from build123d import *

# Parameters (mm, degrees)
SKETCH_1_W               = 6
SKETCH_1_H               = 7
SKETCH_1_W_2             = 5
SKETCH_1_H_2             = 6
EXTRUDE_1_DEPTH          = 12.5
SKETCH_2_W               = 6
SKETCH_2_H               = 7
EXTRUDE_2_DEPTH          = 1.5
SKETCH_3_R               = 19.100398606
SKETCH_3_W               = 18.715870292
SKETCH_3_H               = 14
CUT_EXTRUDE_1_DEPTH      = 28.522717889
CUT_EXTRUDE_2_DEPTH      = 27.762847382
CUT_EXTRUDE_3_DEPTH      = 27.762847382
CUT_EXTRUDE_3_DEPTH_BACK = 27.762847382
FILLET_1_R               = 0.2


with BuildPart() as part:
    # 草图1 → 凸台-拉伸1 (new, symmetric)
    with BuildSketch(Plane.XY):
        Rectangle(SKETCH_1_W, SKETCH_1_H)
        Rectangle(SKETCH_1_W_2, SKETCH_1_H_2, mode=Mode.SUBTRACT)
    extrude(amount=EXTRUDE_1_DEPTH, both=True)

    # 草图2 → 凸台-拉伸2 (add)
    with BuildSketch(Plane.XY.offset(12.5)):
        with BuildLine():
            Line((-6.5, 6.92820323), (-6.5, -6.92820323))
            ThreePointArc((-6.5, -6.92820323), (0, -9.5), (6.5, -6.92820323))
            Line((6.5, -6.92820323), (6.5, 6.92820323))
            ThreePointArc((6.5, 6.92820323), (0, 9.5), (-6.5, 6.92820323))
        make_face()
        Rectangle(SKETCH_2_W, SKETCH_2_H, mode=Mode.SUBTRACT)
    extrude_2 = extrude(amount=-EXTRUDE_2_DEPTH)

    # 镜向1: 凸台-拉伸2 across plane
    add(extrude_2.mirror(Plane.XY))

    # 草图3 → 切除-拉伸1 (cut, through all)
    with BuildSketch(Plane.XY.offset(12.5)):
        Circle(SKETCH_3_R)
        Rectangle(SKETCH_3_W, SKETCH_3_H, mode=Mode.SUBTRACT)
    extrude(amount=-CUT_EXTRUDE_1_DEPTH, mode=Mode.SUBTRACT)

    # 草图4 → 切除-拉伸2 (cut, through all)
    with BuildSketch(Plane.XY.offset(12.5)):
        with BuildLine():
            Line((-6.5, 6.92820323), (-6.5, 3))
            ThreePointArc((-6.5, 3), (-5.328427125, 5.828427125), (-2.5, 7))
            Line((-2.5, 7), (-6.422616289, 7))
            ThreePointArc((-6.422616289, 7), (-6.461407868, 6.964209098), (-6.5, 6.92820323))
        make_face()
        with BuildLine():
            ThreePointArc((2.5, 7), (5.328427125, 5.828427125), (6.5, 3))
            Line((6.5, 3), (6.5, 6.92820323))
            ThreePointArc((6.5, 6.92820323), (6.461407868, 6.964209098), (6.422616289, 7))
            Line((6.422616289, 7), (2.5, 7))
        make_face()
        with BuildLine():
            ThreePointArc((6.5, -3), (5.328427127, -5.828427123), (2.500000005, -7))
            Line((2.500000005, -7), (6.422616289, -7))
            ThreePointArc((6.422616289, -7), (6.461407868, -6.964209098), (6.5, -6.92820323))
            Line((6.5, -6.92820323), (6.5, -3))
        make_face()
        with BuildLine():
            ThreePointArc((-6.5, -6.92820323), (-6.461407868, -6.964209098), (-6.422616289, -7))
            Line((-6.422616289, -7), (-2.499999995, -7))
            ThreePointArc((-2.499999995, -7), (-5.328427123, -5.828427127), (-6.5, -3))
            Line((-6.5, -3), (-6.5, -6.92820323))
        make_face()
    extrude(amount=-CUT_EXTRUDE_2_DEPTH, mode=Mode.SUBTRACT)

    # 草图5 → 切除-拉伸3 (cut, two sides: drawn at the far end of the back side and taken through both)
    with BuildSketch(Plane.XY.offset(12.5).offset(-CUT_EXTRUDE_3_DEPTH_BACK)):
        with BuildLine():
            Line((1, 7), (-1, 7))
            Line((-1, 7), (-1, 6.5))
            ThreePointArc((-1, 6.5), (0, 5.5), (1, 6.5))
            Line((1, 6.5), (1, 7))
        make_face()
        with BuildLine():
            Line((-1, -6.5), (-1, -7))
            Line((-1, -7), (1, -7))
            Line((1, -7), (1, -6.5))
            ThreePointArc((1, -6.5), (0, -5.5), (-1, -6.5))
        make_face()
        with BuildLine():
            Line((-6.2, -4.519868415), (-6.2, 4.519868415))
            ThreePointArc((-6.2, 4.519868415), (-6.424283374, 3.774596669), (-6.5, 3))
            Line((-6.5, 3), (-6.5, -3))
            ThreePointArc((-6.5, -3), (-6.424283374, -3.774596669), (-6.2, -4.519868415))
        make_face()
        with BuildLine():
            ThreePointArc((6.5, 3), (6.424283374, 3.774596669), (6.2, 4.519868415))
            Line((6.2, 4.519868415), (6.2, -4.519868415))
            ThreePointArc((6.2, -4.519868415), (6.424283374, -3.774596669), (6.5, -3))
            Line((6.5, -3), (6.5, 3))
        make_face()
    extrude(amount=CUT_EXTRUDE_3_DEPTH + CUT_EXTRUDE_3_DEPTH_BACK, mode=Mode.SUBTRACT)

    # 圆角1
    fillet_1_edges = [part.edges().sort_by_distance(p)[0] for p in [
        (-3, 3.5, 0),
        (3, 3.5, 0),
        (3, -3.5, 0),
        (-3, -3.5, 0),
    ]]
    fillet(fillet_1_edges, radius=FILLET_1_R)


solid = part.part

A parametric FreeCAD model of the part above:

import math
import FreeCAD as App
import Part
import Sketcher

V = App.Vector


def edges_at(feature, points):
    """Names of the edges that pass closest to the given points."""
    edges = feature.Shape.Edges
    near = lambda p: min(range(len(edges)), key=lambda i: edges[i].distToShape(Part.Vertex(*p))[0])
    return sorted({f"Edge{near(p) + 1}" for p in points})

doc = App.newDocument("Part")
params = doc.addObject("Spreadsheet::Sheet", "Params")
for row, (alias, value) in enumerate([
    ("sketch1_width", "6 mm"),
    ("sketch1_width2", "5 mm"),
    ("sketch1_height", "7 mm"),
    ("pad1_length", "25 mm"),
    ("sketch2_radius", "9.5 mm"),
    ("sketch2_width", "6 mm"),
    ("sketch2_height", "7 mm"),
    ("pad2_length", "1.5 mm"),
    ("sketch3_height", "14 mm"),
    ("sketch4_radius", "4 mm"),
    ("sketch5_radius", "1 mm"),
    ("sketch5_radius2", "4 mm"),
    ("sketch5_height", "6 mm"),
    ("sketch5_height2", "0.5 mm"),
    ("fillet_radius", "0.2 mm"),
], start=1):
    params.set(f"A{row}", alias)
    params.set(f"B{row}", "=" + value)
    params.setAlias(f"B{row}", alias)

body = doc.addObject("PartDesign::Body", "Body")

# Sketch on XY plane
sketch1 = body.newObject("Sketcher::SketchObject", "Sketch")
sketch1.AttachmentSupport = (doc.getObject("XY_Plane"), [""])
sketch1.MapMode = "FlatFace"
sketch1.addGeometry([
    Part.LineSegment(V(-3, 4, 0), V(-3, -4, 0)),  # 0
    Part.LineSegment(V(-3, -4, 0), V(3, -4, 0)),  # 1
    Part.LineSegment(V(3, -4, 0), V(3, 4, 0)),  # 2
    Part.LineSegment(V(3, 4, 0), V(-3, 4, 0)),  # 3
    Part.LineSegment(V(2, -3, 0), V(-2, -3, 0)),  # 4
    Part.LineSegment(V(-2, -3, 0), V(-2, 3, 0)),  # 5
    Part.LineSegment(V(-2, 3, 0), V(2, 3, 0)),  # 6
    Part.LineSegment(V(2, 3, 0), V(2, -3, 0)),  # 7
], False)
sketch1.addConstraint([
    Sketcher.Constraint("Coincident", 0, 2, 1, 1),
    Sketcher.Constraint("Coincident", 1, 2, 2, 1),
    Sketcher.Constraint("Coincident", 2, 2, 3, 1),
    Sketcher.Constraint("Coincident", 3, 2, 0, 1),
    Sketcher.Constraint("Coincident", 4, 2, 5, 1),
    Sketcher.Constraint("Coincident", 5, 2, 6, 1),
    Sketcher.Constraint("Coincident", 6, 2, 7, 1),
    Sketcher.Constraint("Coincident", 7, 2, 4, 1),
    Sketcher.Constraint("Vertical", 0),
    Sketcher.Constraint("Horizontal", 1),
    Sketcher.Constraint("Vertical", 2),
    Sketcher.Constraint("Horizontal", 3),
    Sketcher.Constraint("Horizontal", 4),
    Sketcher.Constraint("Vertical", 5),
    Sketcher.Constraint("Horizontal", 6),
    Sketcher.Constraint("Vertical", 7),
    Sketcher.Constraint("Symmetric", 0, 2, 2, 2, -1, 1),
    Sketcher.Constraint("Symmetric", 4, 2, 6, 2, -1, 1),
    Sketcher.Constraint("Equal", 3, 5),
    Sketcher.Constraint("DistanceX", 1, 1, 1, 2, 6.0),
    Sketcher.Constraint("DistanceX", 4, 2, 4, 1, 5.0),
    Sketcher.Constraint("DistanceY", 0, 2, 0, 1, 7.0),
])
sketch1.setExpression("Constraints[19]", "Params.sketch1_width")
sketch1.setExpression("Constraints[20]", "Params.sketch1_width2")
sketch1.setExpression("Constraints[21]", "Params.sketch1_height")
pad1 = body.newObject("PartDesign::Pad", "Pad")
pad1.Profile = sketch1
pad1.setExpression("Length", "Params.pad1_length")
pad1.Midplane = True

# Sketch on XY plane
sketch2 = body.newObject("Sketcher::SketchObject", "Sketch001")
sketch2.AttachmentSupport = (doc.getObject("XY_Plane"), [""])
sketch2.MapMode = "FlatFace"
sketch2.AttachmentOffset = App.Placement(V(0, 0, 12.5), App.Rotation())
sketch2.addGeometry([
    Part.LineSegment(V(-6, 7, 0), V(-6, -7, 0)),  # 0
    Part.ArcOfCircle(Part.Circle(V(0, 0, 0), V(0, 0, 1), 9), math.radians(-133), math.radians(-47)),  # 1
    Part.LineSegment(V(6, -7, 0), V(6, 7, 0)),  # 2
    Part.ArcOfCircle(Part.Circle(V(0, 0, 0), V(0, 0, 1), 9), math.radians(47), math.radians(133)),  # 3
    Part.LineSegment(V(3, -4, 0), V(-3, -4, 0)),  # 4
    Part.LineSegment(V(-3, -4, 0), V(-3, 4, 0)),  # 5
    Part.LineSegment(V(-3, 4, 0), V(3, 4, 0)),  # 6
    Part.LineSegment(V(3, 4, 0), V(3, -4, 0)),  # 7
], False)
sketch2.addConstraint([
    Sketcher.Constraint("Coincident", 0, 2, 1, 1),
    Sketcher.Constraint("Coincident", 1, 2, 2, 1),
    Sketcher.Constraint("Coincident", 2, 2, 3, 1),
    Sketcher.Constraint("Coincident", 3, 2, 0, 1),
    Sketcher.Constraint("Coincident", 4, 2, 5, 1),
    Sketcher.Constraint("Coincident", 5, 2, 6, 1),
    Sketcher.Constraint("Coincident", 6, 2, 7, 1),
    Sketcher.Constraint("Coincident", 7, 2, 4, 1),
    Sketcher.Constraint("Vertical", 0),
    Sketcher.Constraint("Vertical", 2),
    Sketcher.Constraint("Horizontal", 4),
    Sketcher.Constraint("Vertical", 5),
    Sketcher.Constraint("Horizontal", 6),
    Sketcher.Constraint("Vertical", 7),
    Sketcher.Constraint("Coincident", 1, 3, -1, 1),
    Sketcher.Constraint("Coincident", 3, 3, -1, 1),
    Sketcher.Constraint("Equal", 1, 3),
    Sketcher.Constraint("Symmetric", 4, 2, 6, 2, -1, 1),
    Sketcher.Constraint("Horizontal", 0, 2, 1, 2),
    Sketcher.Constraint("Radius", 1, 9.5),
    Sketcher.Constraint("DistanceX", 4, 2, 4, 1, 6.0),
    Sketcher.Constraint("DistanceY", 5, 1, 5, 2, 7.0),
    Sketcher.Constraint("DistanceX", 0, 2, 1, 2, 13.0),
])
sketch2.setExpression("Constraints[19]", "Params.sketch2_radius")
sketch2.setExpression("Constraints[20]", "Params.sketch2_width")
sketch2.setExpression("Constraints[21]", "Params.sketch2_height")
pad2 = body.newObject("PartDesign::Pad", "Pad001")
pad2.Profile = sketch2
pad2.setExpression("Length", "Params.pad2_length")
pad2.Reversed = True
doc.recompute()

mirrored = body.newObject("PartDesign::Mirrored", "Mirrored")
mirrored.Originals = [pad2]
mirrored.MirrorPlane = (doc.getObject("XY_Plane"), [""])
body.Tip = mirrored

# Sketch on XY plane
sketch3 = body.newObject("Sketcher::SketchObject", "Sketch002")
sketch3.AttachmentSupport = (doc.getObject("XY_Plane"), [""])
sketch3.MapMode = "FlatFace"
sketch3.AttachmentOffset = App.Placement(V(0, 0, 12.5), App.Rotation())
sketch3.addGeometry([
    Part.Circle(V(0, 0, 0), V(0, 0, 1), 19),  # 0
    Part.LineSegment(V(9, -7, 0), V(-9, -7, 0)),  # 1
    Part.LineSegment(V(-9, -7, 0), V(-9, 7, 0)),  # 2
    Part.LineSegment(V(-9, 7, 0), V(9, 7, 0)),  # 3
    Part.LineSegment(V(9, 7, 0), V(9, -7, 0)),  # 4
], False)
sketch3.addConstraint([
    Sketcher.Constraint("Coincident", 1, 2, 2, 1),
    Sketcher.Constraint("Coincident", 2, 2, 3, 1),
    Sketcher.Constraint("Coincident", 3, 2, 4, 1),
    Sketcher.Constraint("Coincident", 4, 2, 1, 1),
    Sketcher.Constraint("Horizontal", 1),
    Sketcher.Constraint("Vertical", 2),
    Sketcher.Constraint("Horizontal", 3),
    Sketcher.Constraint("Vertical", 4),
    Sketcher.Constraint("Coincident", 0, 3, -1, 1),
    Sketcher.Constraint("Symmetric", 1, 2, 3, 2, -1, 1),
    Sketcher.Constraint("DistanceY", 2, 1, 2, 2, 14.0),
    Sketcher.Constraint("Diameter", 0, 38.200797),
    Sketcher.Constraint("DistanceX", 1, 2, 1, 1, 18.71587),
])
sketch3.setExpression("Constraints[10]", "Params.sketch3_height")
pocket1 = body.newObject("PartDesign::Pocket", "Pocket")
pocket1.Profile = sketch3
pocket1.Type = "ThroughAll"

# Sketch on XY plane
sketch4 = body.newObject("Sketcher::SketchObject", "Sketch003")
sketch4.AttachmentSupport = (doc.getObject("XY_Plane"), [""])
sketch4.MapMode = "FlatFace"
sketch4.AttachmentOffset = App.Placement(V(0, 0, 12.5), App.Rotation())
sketch4.addGeometry([
    Part.LineSegment(V(-6.5, 6.93, 0), V(-6.5, 3, 0)),  # 0
    Part.ArcOfCircle(Part.Circle(V(-2.5, 3, 0), V(0, 0, 1), 4), math.radians(90), math.radians(180)),  # 1
    Part.LineSegment(V(-2.5, 7, 0), V(-6.42, 7, 0)),  # 2
    Part.ArcOfCircle(Part.Circle(V(0, 0, 0), V(0, 0, 1), 9.5), math.radians(132.54), math.radians(133.17)),  # 3
    Part.ArcOfCircle(Part.Circle(V(2.5, 3, 0), V(0, 0, 1), 4), math.radians(0), math.radians(90)),  # 4
    Part.LineSegment(V(6.5, 3, 0), V(6.5, 6.93, 0)),  # 5
    Part.ArcOfCircle(Part.Circle(V(0, 0, 0), V(0, 0, 1), 9.5), math.radians(46.83), math.radians(47.46)),  # 6
    Part.LineSegment(V(6.42, 7, 0), V(2.5, 7, 0)),  # 7
    Part.ArcOfCircle(Part.Circle(V(2.5, -3, 0), V(0, 0, 1), 4), math.radians(-90), math.radians(0)),  # 8
    Part.LineSegment(V(2.5, -7, 0), V(6.42, -7, 0)),  # 9
    Part.ArcOfCircle(Part.Circle(V(0, 0, 0), V(0, 0, 1), 9.5), math.radians(-47.46), math.radians(-46.83)),  # 10
    Part.LineSegment(V(6.5, -6.93, 0), V(6.5, -3, 0)),  # 11
    Part.ArcOfCircle(Part.Circle(V(0, 0, 0), V(0, 0, 1), 9.5), math.radians(-133.17), math.radians(-132.54)),  # 12
    Part.LineSegment(V(-6.42, -7, 0), V(-2.5, -7, 0)),  # 13
    Part.ArcOfCircle(Part.Circle(V(-2.5, -3, 0), V(0, 0, 1), 4), math.radians(180), math.radians(270)),  # 14
    Part.LineSegment(V(-6.5, -3, 0), V(-6.5, -6.93, 0)),  # 15
], False)
sketch4.addConstraint([
    Sketcher.Constraint("Tangent", 0, 2, 1, 2),
    Sketcher.Constraint("Tangent", 1, 1, 2, 1),
    Sketcher.Constraint("Coincident", 2, 2, 3, 1),
    Sketcher.Constraint("Coincident", 3, 2, 0, 1),
    Sketcher.Constraint("Tangent", 4, 1, 5, 1),
    Sketcher.Constraint("Coincident", 5, 2, 6, 1),
    Sketcher.Constraint("Coincident", 6, 2, 7, 1),
    Sketcher.Constraint("Tangent", 7, 2, 4, 2),
    Sketcher.Constraint("Tangent", 8, 1, 9, 1),
    Sketcher.Constraint("Coincident", 9, 2, 10, 1),
    Sketcher.Constraint("Coincident", 10, 2, 11, 1),
    Sketcher.Constraint("Tangent", 11, 2, 8, 2),
    Sketcher.Constraint("Coincident", 12, 2, 13, 1),
    Sketcher.Constraint("Tangent", 13, 2, 14, 2),
    Sketcher.Constraint("Tangent", 14, 1, 15, 1),
    Sketcher.Constraint("Coincident", 15, 2, 12, 1),
    Sketcher.Constraint("Vertical", 0),
    Sketcher.Constraint("Horizontal", 2),
    Sketcher.Constraint("Vertical", 5),
    Sketcher.Constraint("Horizontal", 7),
    Sketcher.Constraint("Horizontal", 9),
    Sketcher.Constraint("Vertical", 11),
    Sketcher.Constraint("Horizontal", 13),
    Sketcher.Constraint("Vertical", 15),
    Sketcher.Constraint("Coincident", 3, 3, -1, 1),
    Sketcher.Constraint("Coincident", 6, 3, -1, 1),
    Sketcher.Constraint("Coincident", 10, 3, -1, 1),
    Sketcher.Constraint("Coincident", 12, 3, -1, 1),
    Sketcher.Constraint("Equal", 1, 4),
    Sketcher.Constraint("Equal", 3, 6),
    Sketcher.Constraint("Equal", 4, 8),
    Sketcher.Constraint("Equal", 6, 10),
    Sketcher.Constraint("Equal", 10, 12),
    Sketcher.Constraint("Equal", 8, 14),
    Sketcher.Constraint("Symmetric", 1, 3, 8, 3, -1, 1),
    Sketcher.Constraint("Symmetric", 4, 3, 14, 3, -1, 1),
    Sketcher.Constraint("Symmetric", 1, 3, 4, 3, -2),
    Sketcher.Constraint("Radius", 1, 4.0),
    Sketcher.Constraint("DistanceY", -1, 1, 1, 3, 3.0),
    Sketcher.Constraint("DistanceX", 1, 3, 4, 3, 5.0),
    Sketcher.Constraint("Radius", 3, 9.499995),
])
sketch4.setExpression("Constraints[37]", "Params.sketch4_radius")
pocket2 = body.newObject("PartDesign::Pocket", "Pocket001")
pocket2.Profile = sketch4
pocket2.Type = "ThroughAll"

# Sketch on XY plane
sketch5 = body.newObject("Sketcher::SketchObject", "Sketch004")
sketch5.AttachmentSupport = (doc.getObject("XY_Plane"), [""])
sketch5.MapMode = "FlatFace"
sketch5.AttachmentOffset = App.Placement(V(0, 0, 12.5), App.Rotation())
sketch5.addGeometry([
    Part.LineSegment(V(1, 7, 0), V(-1, 7, 0)),  # 0
    Part.LineSegment(V(-1, 7, 0), V(-1, 6.5, 0)),  # 1
    Part.ArcOfCircle(Part.Circle(V(0, 6.5, 0), V(0, 0, 1), 1), math.radians(180), math.radians(360)),  # 2
    Part.LineSegment(V(1, 6.5, 0), V(1, 7, 0)),  # 3
    Part.LineSegment(V(-1, -6.5, 0), V(-1, -7, 0)),  # 4
    Part.LineSegment(V(-1, -7, 0), V(1, -7, 0)),  # 5
    Part.LineSegment(V(1, -7, 0), V(1, -6.5, 0)),  # 6
    Part.ArcOfCircle(Part.Circle(V(0, -6.5, 0), V(0, 0, 1), 1), math.radians(0), math.radians(180)),  # 7
    Part.LineSegment(V(-6.2, -4.5, 0), V(-6.2, 4.5, 0)),  # 8
    Part.ArcOfCircle(Part.Circle(V(-2.5, 3, 0), V(0, 0, 1), 4), math.radians(158), math.radians(180)),  # 9
    Part.LineSegment(V(-6.5, 3, 0), V(-6.5, -3, 0)),  # 10
    Part.ArcOfCircle(Part.Circle(V(-2.5, -3, 0), V(0, 0, 1), 4), math.radians(-180), math.radians(-158)),  # 11
    Part.ArcOfCircle(Part.Circle(V(2.5, 3, 0), V(0, 0, 1), 4), math.radians(0), math.radians(22)),  # 12
    Part.LineSegment(V(6.2, 4.5, 0), V(6.2, -4.5, 0)),  # 13
    Part.ArcOfCircle(Part.Circle(V(2.5, -3, 0), V(0, 0, 1), 4), math.radians(-22), math.radians(0)),  # 14
    Part.LineSegment(V(6.5, -3, 0), V(6.5, 3, 0)),  # 15
], False)
sketch5.addConstraint([
    Sketcher.Constraint("Coincident", 0, 2, 1, 1),
    Sketcher.Constraint("Tangent", 1, 2, 2, 1),
    Sketcher.Constraint("Tangent", 2, 2, 3, 1),
    Sketcher.Constraint("Coincident", 3, 2, 0, 1),
    Sketcher.Constraint("Coincident", 4, 2, 5, 1),
    Sketcher.Constraint("Coincident", 5, 2, 6, 1),
    Sketcher.Constraint("Tangent", 6, 2, 7, 1),
    Sketcher.Constraint("Tangent", 7, 2, 4, 1),
    Sketcher.Constraint("Coincident", 8, 2, 9, 1),
    Sketcher.Constraint("Tangent", 9, 2, 10, 1),
    Sketcher.Constraint("Tangent", 10, 2, 11, 1),
    Sketcher.Constraint("Coincident", 11, 2, 8, 1),
    Sketcher.Constraint("Coincident", 12, 2, 13, 1),
    Sketcher.Constraint("Coincident", 13, 2, 14, 1),
    Sketcher.Constraint("Tangent", 14, 2, 15, 1),
    Sketcher.Constraint("Tangent", 15, 2, 12, 1),
    Sketcher.Constraint("Horizontal", 0),
    Sketcher.Constraint("Vertical", 1),
    Sketcher.Constraint("Vertical", 3),
    Sketcher.Constraint("Vertical", 4),
    Sketcher.Constraint("Horizontal", 5),
    Sketcher.Constraint("Vertical", 6),
    Sketcher.Constraint("Vertical", 8),
    Sketcher.Constraint("Vertical", 10),
    Sketcher.Constraint("Vertical", 13),
    Sketcher.Constraint("Vertical", 15),
    Sketcher.Constraint("Equal", 2, 7),
    Sketcher.Constraint("Equal", 9, 11),
    Sketcher.Constraint("Equal", 11, 12),
    Sketcher.Constraint("Equal", 12, 14),
    Sketcher.Constraint("Symmetric", 2, 3, 7, 3, -1, 1),
    Sketcher.Constraint("Symmetric", 11, 3, 12, 3, -1, 1),
    Sketcher.Constraint("Symmetric", 8, 2, 13, 2, -1, 1),
    Sketcher.Constraint("Symmetric", 0, 2, 4, 2, -1),
    Sketcher.Constraint("Horizontal", 9, 3, 12, 3),
    Sketcher.Constraint("Radius", 2, 1.0),
    Sketcher.Constraint("Radius", 9, 4.0),
    Sketcher.Constraint("DistanceY", 10, 2, 10, 1, 6.0),
    Sketcher.Constraint("DistanceY", 1, 2, 1, 1, 0.5),
    Sketcher.Constraint("DistanceY", -1, 1, 0, 2, 7.0),
    Sketcher.Constraint("DistanceX", 9, 3, 12, 3, 5.0),
    Sketcher.Constraint("DistanceX", 8, 2, -1, 1, 6.2),
])
sketch5.setExpression("Constraints[35]", "Params.sketch5_radius")
sketch5.setExpression("Constraints[36]", "Params.sketch5_radius2")
sketch5.setExpression("Constraints[37]", "Params.sketch5_height")
sketch5.setExpression("Constraints[38]", "Params.sketch5_height2")
pocket3 = body.newObject("PartDesign::Pocket", "Pocket002")
pocket3.Profile = sketch5
pocket3.Type = "ThroughAll"
pocket3.Midplane = True
doc.recompute()

fillet = body.newObject("PartDesign::Fillet", "Fillet")
fillet.Base = (pocket3, edges_at(pocket3, [
    (-3, 3.5, 0),
    (3, 3.5, 0),
    (3, -3.5, 0),
    (-3, -3.5, 0),
]))
fillet.setExpression("Radius", "Params.fillet_radius")

doc.recompute()
